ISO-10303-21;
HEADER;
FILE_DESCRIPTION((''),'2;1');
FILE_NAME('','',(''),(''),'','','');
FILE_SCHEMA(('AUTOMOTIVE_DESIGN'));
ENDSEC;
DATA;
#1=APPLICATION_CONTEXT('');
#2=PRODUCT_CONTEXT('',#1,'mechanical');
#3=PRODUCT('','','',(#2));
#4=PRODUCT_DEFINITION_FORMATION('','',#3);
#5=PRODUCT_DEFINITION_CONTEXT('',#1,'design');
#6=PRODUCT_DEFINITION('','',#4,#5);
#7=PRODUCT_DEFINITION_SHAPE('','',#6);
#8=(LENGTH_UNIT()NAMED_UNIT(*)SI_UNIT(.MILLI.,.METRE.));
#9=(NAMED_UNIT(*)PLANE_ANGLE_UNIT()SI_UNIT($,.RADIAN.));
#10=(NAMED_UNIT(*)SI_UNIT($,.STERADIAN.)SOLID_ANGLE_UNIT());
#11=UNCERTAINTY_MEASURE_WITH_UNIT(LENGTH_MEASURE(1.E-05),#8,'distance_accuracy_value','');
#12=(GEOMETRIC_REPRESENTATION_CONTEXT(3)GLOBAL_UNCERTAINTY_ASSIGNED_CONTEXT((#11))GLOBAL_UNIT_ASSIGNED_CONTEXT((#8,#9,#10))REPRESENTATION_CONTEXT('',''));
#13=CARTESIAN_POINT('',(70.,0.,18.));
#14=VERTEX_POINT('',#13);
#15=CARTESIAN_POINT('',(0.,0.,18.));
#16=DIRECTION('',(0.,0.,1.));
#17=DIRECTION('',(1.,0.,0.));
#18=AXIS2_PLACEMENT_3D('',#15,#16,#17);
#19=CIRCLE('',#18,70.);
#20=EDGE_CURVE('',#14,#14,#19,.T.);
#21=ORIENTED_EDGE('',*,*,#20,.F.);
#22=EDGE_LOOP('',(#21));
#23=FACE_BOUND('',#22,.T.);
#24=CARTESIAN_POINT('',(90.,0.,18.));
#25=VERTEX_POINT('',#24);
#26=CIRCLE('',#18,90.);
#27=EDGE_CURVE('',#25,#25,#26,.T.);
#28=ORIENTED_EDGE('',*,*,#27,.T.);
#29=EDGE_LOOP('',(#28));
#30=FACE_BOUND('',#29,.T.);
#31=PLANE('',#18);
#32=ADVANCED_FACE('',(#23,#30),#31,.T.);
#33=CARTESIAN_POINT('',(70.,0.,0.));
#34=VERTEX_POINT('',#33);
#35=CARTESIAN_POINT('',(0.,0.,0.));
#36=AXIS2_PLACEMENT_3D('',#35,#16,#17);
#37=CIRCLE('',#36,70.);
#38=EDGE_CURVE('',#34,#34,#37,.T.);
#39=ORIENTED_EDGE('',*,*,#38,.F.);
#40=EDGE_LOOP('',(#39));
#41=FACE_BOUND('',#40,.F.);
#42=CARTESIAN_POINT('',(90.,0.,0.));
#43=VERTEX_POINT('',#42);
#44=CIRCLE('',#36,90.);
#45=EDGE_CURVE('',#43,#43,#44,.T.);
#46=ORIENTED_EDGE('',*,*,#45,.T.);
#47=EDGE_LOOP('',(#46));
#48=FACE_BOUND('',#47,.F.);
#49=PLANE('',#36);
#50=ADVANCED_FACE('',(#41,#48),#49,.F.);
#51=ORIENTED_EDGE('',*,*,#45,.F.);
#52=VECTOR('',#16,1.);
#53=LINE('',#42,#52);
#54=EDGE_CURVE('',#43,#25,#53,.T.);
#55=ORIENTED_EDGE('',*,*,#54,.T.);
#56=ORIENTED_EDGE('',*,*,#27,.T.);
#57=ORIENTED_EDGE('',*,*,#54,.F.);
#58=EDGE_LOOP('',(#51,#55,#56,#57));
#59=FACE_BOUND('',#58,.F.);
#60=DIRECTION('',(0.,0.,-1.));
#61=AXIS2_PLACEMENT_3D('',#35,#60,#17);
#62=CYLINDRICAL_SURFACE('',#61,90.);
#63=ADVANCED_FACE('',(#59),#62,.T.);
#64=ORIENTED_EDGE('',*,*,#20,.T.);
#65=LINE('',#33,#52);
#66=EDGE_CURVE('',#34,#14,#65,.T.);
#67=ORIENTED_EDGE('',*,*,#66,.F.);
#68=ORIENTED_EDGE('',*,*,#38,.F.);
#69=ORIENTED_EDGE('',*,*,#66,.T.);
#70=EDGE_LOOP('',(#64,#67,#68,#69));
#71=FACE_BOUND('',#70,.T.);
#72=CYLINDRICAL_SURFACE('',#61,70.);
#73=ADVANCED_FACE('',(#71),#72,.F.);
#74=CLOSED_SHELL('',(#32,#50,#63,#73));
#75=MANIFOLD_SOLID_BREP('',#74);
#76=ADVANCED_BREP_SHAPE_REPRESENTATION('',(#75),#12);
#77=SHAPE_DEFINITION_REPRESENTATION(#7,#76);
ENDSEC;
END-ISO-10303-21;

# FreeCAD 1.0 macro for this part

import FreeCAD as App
import Part
import Sketcher
from FreeCAD import Vector

doc = App.newDocument("Part")
body = doc.addObject("PartDesign::Body", "Body")

# Sketch on XY plane
sketch1 = body.newObject("Sketcher::SketchObject", "Sketch")
sketch1.AttachmentSupport = (doc.getObject("XY_Plane"), [""])
sketch1.MapMode = "FlatFace"
sketch1.addGeometry([
    Part.Circle(Vector(0, 0, 0), Vector(0, 0, 1), 90),
    Part.Circle(Vector(0, 0, 0), Vector(0, 0, 1), 70),
], False)
sketch1.addConstraint([
    Sketcher.Constraint("Coincident", 0, 3, -1, 1),
    Sketcher.Constraint("Coincident", 1, 3, -1, 1),
    Sketcher.Constraint("Diameter", 0, 180.0),
    Sketcher.Constraint("Diameter", 1, 140.0),
])
pad1 = body.newObject("PartDesign::Pad", "Pad")
pad1.Profile = sketch1
pad1.Length = 18

doc.recompute()
